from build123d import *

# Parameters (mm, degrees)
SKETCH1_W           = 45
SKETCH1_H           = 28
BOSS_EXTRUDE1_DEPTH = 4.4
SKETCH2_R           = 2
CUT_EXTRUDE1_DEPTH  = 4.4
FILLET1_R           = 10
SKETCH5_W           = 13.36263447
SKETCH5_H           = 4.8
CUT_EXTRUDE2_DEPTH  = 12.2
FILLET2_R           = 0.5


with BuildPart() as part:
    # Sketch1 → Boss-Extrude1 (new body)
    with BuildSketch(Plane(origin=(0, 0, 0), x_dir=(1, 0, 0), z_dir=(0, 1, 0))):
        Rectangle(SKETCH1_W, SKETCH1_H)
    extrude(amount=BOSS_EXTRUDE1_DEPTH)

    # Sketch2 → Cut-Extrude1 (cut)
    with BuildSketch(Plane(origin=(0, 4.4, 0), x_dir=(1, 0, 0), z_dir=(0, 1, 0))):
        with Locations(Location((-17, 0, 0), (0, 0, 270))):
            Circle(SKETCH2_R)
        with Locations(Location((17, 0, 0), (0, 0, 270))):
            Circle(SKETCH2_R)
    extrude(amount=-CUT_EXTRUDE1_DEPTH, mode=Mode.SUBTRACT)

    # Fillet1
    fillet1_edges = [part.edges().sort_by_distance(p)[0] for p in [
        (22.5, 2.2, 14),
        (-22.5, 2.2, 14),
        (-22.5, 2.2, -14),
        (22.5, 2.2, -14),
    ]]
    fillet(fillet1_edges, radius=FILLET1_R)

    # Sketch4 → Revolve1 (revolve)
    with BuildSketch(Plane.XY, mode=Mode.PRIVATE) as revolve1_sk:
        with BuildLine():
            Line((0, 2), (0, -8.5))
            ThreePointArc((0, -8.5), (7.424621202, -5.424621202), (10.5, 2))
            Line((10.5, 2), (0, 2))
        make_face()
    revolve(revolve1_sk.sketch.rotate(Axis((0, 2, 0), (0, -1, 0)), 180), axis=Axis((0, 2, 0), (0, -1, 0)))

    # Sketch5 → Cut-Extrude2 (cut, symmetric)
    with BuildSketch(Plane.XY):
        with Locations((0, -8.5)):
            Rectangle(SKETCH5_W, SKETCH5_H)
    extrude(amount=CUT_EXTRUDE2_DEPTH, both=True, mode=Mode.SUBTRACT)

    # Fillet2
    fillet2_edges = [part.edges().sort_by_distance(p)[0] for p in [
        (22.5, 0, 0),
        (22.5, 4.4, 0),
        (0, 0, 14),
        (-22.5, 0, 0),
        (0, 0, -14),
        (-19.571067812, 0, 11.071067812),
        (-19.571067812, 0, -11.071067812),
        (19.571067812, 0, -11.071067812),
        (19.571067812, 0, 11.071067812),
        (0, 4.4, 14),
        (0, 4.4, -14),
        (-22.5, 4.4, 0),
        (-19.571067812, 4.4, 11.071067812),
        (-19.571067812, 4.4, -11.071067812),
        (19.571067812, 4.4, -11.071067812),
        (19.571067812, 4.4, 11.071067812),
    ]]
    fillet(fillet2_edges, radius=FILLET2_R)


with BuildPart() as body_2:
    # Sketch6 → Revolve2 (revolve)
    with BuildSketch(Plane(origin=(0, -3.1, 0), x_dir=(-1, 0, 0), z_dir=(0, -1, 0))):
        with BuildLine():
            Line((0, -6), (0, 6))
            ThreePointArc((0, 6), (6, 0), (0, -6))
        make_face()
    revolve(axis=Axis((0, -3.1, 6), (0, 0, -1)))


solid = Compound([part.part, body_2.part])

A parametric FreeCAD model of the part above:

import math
import FreeCAD as App
import Part
import Sketcher


def edges_at(feature, points):
    """Names of the edges that pass closest to the given points."""
    edges = feature.Shape.Edges
    near = lambda p: min(range(len(edges)), key=lambda i: edges[i].distToShape(Part.Vertex(*p))[0])
    return sorted({f"Edge{near(p) + 1}" for p in points})


def add_polygon(sketch, points):
    """Adds a closed chain of lines whose ends are joined by coincident constraints."""
    first, n = sketch.GeometryCount, len(points)
    for a, b in zip(points, points[1:] + points[:1]):
        sketch.addGeometry(Part.LineSegment(App.Vector(*a, 0), App.Vector(*b, 0)), False)
    for i in range(n):
        sketch.addConstraint(Sketcher.Constraint("Coincident", first + i, 2, first + (i + 1) % n, 1))

doc = App.newDocument("Part")
body = doc.addObject("PartDesign::Body", "Body")

sketch1 = doc.addObject("Sketcher::SketchObject", "Sketch")
body.addObject(sketch1)
sketch1.AttachmentSupport = (doc.XZ_Plane, [""])
sketch1.MapMode = "FlatFace"
add_polygon(sketch1, [(-22, -14), (-22, 14), (22, 14), (22, -14)])
sketch1.addConstraint([
    Sketcher.Constraint("Vertical", 0),
    Sketcher.Constraint("Horizontal", 1),
    Sketcher.Constraint("Vertical", 2),
    Sketcher.Constraint("Horizontal", 3),
    Sketcher.Constraint("Symmetric", 0, 2, 2, 2, -1, 1),
    Sketcher.Constraint("DistanceX", 1, 1, 1, 2, 45.0),
    Sketcher.Constraint("DistanceY", 0, 1, 0, 2, 28.0),
])
pad1 = doc.addObject("PartDesign::Pad", "Pad")
body.addObject(pad1)
pad1.Profile = sketch1
pad1.Length = 4.4
pad1.Reversed = True

sketch2 = doc.addObject("Sketcher::SketchObject", "Sketch001")
body.addObject(sketch2)
sketch2.AttachmentSupport = (doc.XZ_Plane, [""])
sketch2.MapMode = "FlatFace"
sketch2.AttachmentOffset = App.Placement(App.Vector(0, 0, -4.4), App.Rotation())
sketch2.addGeometry([
    Part.Circle(App.Vector(-17, 0, 0), App.Vector(0, 0, 1), 2),
    Part.Circle(App.Vector(17, 0, 0), App.Vector(0, 0, 1), 2),
], False)
sketch2.addConstraint([
    Sketcher.Constraint("Equal", 0, 1),
    Sketcher.Constraint("Symmetric", 0, 3, 1, 3, -1, 1),
    Sketcher.Constraint("PointOnObject", 0, 3, -1),
    Sketcher.Constraint("Diameter", 0, 4.0),
    Sketcher.Constraint("DistanceX", 0, 3, -1, 1, 17.0),
])
pocket1 = doc.addObject("PartDesign::Pocket", "Pocket")
body.addObject(pocket1)
pocket1.Profile = sketch2
pocket1.Length = 4.4
pocket1.Reversed = True
doc.recompute()

fillet = doc.addObject("PartDesign::Fillet", "Fillet")
body.addObject(fillet)
fillet.Base = (pocket1, edges_at(pocket1, [
    (22.5, 2.2, 14),
    (-22.5, 2.2, 14),
    (-22.5, 2.2, -14),
    (22.5, 2.2, -14),
]))
fillet.Radius = 10

sketch3 = doc.addObject("Sketcher::SketchObject", "Sketch002")
body.addObject(sketch3)
sketch3.AttachmentSupport = (doc.XY_Plane, [""])
sketch3.MapMode = "FlatFace"
sketch3.addGeometry([
    Part.LineSegment(App.Vector(0, 2, 0), App.Vector(0, -8, 0)),
    Part.ArcOfCircle(Part.Circle(App.Vector(0, 2, 0), App.Vector(0, 0, 1), 11), math.radians(-90), math.radians(0)),
    Part.LineSegment(App.Vector(10, 2, 0), App.Vector(0, 2, 0)),
], False)
sketch3.addConstraint([
    Sketcher.Constraint("Coincident", 0, 2, 1, 1),
    Sketcher.Constraint("Coincident", 1, 2, 2, 1),
    Sketcher.Constraint("Coincident", 2, 2, 0, 1),
    Sketcher.Constraint("Vertical", 0),
    Sketcher.Constraint("Horizontal", 2),
    Sketcher.Constraint("Coincident", 2, 2, 1, 3),
    Sketcher.Constraint("PointOnObject", 1, 3, -2),
    Sketcher.Constraint("Radius", 1, 10.5),
    Sketcher.Constraint("DistanceY", -1, 1, 1, 3, 2.0),
])
revolution = doc.addObject("PartDesign::Revolution", "Revolution")
body.addObject(revolution)
revolution.Profile = sketch3
revolution.ReferenceAxis = (sketch3, ["V_Axis"])
revolution.Angle = 360

sketch4 = doc.addObject("Sketcher::SketchObject", "Sketch003")
body.addObject(sketch4)
sketch4.AttachmentSupport = (doc.XY_Plane, [""])
sketch4.MapMode = "FlatFace"
add_polygon(sketch4, [(-6.7, -6.1), (-6.7, -10.9), (6.7, -10.9), (6.7, -6.1)])
sketch4.addConstraint([
    Sketcher.Constraint("Vertical", 0),
    Sketcher.Constraint("Horizontal", 1),
    Sketcher.Constraint("Vertical", 2),
    Sketcher.Constraint("Horizontal", 3),
    Sketcher.Constraint("DistanceY", 0, 2, 0, 1, 4.8),
    Sketcher.Constraint("DistanceY", 0, 2, -1, 1, 10.9),
    Sketcher.Constraint("DistanceX", 1, 1, 1, 2, 13.362634),
    Sketcher.Constraint("DistanceX", 0, 2, -1, 1, 6.681317),
])
pocket2 = doc.addObject("PartDesign::Pocket", "Pocket001")
body.addObject(pocket2)
pocket2.Profile = sketch4
pocket2.Length = 24.4
pocket2.Midplane = True
doc.recompute()

fillet2 = doc.addObject("PartDesign::Fillet", "Fillet001")
body.addObject(fillet2)
fillet2.Base = (pocket2, edges_at(pocket2, [
    (22.5, 0, 0),
    (22.5, 4.4, 0),
    (0, 0, 14),
    (-22.5, 0, 0),
    (0, 0, -14),
    (-19.571, 0, 11.071),
    (-19.571, 0, -11.071),
    (19.571, 0, -11.071),
    (19.571, 0, 11.071),
    (0, 4.4, 14),
    (0, 4.4, -14),
    (-22.5, 4.4, 0),
    (-19.571, 4.4, 11.071),
    (-19.571, 4.4, -11.071),
    (19.571, 4.4, -11.071),
    (19.571, 4.4, 11.071),
]))
fillet2.Radius = 0.5
body2 = doc.addObject("PartDesign::Body", "Body001")

sketch5 = doc.addObject("Sketcher::SketchObject", "Sketch004")
body2.addObject(sketch5)
sketch5.AttachmentSupport = (doc.getObject("XZ_Plane001"), [""])
sketch5.MapMode = "FlatFace"
sketch5.AttachmentOffset = App.Placement(App.Vector(0, 0, 3.1), App.Rotation())
sketch5.addGeometry([
    Part.LineSegment(App.Vector(0, -6, 0), App.Vector(0, 6, 0)),
    Part.ArcOfCircle(Part.Circle(App.Vector(0, 0, 0), App.Vector(0, 0, 1), 6), math.radians(90), math.radians(270)),
], False)
sketch5.addConstraint([
    Sketcher.Constraint("Coincident", 0, 1, 1, 2),
    Sketcher.Constraint("Coincident", 1, 1, 0, 2),
    Sketcher.Constraint("Vertical", 0),
    Sketcher.Constraint("Coincident", 1, 3, -1, 1),
    Sketcher.Constraint("PointOnObject", 0, 1, -2),
    Sketcher.Constraint("Radius", 1, 6.0),
])
revolution2 = doc.addObject("PartDesign::Revolution", "Revolution001")
body2.addObject(revolution2)
revolution2.Profile = sketch5
revolution2.ReferenceAxis = (sketch5, ["V_Axis"])
revolution2.Angle = 360

doc.recompute()
